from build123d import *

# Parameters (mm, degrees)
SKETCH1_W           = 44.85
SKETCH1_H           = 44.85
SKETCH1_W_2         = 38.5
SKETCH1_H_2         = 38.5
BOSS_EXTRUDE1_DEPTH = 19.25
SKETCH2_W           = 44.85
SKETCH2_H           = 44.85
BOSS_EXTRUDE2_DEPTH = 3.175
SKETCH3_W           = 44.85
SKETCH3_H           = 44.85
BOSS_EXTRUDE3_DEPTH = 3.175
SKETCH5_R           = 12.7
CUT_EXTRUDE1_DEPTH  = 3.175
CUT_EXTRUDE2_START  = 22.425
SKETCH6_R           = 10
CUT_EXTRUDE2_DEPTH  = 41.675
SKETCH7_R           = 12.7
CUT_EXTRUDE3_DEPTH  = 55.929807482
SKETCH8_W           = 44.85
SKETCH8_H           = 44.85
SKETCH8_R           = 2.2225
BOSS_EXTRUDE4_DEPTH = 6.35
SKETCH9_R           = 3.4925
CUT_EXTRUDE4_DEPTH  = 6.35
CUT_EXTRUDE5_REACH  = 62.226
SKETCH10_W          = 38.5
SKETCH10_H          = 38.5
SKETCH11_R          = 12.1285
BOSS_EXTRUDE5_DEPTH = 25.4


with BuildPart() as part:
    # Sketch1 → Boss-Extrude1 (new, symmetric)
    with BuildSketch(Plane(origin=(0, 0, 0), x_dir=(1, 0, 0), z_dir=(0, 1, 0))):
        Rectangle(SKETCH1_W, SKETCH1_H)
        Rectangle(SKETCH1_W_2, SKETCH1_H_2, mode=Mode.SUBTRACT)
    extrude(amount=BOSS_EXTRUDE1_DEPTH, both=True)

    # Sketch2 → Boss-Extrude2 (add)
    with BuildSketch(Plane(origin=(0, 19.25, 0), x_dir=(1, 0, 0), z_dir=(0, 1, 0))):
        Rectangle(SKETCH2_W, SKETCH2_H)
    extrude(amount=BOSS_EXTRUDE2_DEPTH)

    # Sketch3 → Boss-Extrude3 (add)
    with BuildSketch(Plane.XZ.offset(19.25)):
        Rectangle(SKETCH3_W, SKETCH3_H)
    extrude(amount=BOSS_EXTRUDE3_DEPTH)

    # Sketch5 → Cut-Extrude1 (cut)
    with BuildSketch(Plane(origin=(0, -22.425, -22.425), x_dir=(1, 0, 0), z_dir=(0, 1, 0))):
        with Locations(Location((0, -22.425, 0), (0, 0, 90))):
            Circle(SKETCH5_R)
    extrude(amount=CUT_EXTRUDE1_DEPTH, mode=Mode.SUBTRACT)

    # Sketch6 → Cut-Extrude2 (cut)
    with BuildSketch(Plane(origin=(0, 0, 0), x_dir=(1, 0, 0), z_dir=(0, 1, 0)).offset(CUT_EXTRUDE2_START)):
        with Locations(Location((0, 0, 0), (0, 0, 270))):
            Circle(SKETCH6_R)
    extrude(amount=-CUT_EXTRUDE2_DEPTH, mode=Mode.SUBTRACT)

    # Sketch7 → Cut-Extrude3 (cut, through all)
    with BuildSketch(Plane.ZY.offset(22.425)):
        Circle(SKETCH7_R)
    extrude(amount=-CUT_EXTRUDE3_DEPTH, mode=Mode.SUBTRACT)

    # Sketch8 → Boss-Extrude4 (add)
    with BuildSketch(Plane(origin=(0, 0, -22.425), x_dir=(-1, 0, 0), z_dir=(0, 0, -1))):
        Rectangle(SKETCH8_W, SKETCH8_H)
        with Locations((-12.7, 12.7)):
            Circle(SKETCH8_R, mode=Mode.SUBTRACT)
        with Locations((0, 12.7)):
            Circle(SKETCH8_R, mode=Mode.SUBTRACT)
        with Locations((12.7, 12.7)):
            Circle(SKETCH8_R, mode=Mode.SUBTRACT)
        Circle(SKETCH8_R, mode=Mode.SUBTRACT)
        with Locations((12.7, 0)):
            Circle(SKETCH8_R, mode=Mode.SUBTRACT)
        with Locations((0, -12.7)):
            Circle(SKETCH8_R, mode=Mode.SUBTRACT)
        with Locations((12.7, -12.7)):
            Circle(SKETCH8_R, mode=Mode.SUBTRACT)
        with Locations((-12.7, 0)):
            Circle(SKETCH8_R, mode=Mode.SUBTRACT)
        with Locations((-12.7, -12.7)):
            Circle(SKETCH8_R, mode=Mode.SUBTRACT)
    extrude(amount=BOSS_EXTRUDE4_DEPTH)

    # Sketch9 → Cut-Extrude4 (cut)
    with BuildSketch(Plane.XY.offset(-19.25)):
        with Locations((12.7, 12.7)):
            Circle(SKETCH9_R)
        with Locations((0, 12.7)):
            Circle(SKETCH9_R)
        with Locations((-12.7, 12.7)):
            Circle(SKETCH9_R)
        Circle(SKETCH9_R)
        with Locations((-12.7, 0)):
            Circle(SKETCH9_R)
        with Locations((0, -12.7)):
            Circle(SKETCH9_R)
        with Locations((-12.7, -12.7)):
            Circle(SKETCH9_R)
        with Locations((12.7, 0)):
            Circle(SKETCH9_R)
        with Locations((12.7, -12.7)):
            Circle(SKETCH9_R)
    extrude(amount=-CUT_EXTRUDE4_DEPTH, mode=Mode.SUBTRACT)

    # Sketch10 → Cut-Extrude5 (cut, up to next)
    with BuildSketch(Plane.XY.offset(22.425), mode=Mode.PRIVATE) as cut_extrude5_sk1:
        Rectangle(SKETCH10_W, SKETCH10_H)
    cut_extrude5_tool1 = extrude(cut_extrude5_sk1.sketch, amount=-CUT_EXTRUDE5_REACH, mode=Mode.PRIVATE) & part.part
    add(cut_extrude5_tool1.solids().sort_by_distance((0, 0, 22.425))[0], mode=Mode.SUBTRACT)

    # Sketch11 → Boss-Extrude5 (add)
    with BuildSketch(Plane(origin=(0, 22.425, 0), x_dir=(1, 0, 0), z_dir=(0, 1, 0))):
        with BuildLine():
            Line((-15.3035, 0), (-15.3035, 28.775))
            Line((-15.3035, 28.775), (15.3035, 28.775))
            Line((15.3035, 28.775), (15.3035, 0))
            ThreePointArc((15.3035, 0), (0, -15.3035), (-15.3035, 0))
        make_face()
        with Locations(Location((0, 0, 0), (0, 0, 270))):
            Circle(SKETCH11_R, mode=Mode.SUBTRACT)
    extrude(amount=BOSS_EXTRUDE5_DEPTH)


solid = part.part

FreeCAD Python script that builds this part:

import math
import FreeCAD as App
import Part
import Sketcher
from FreeCAD import Vector
Q = App.Units.Quantity

doc = App.newDocument("Part")
params = doc.addObject("Spreadsheet::Sheet", "Params")
for row, (alias, value) in enumerate([
    ("pad1_length", "38.5 mm"),
    ("pad2_length", "0.125 in"),
    ("pad3_length", "0.125 in"),
    ("sketch4_diameter", "1 in"),
    ("pocket1_length", "0.125 in"),
    ("pocket2_length", "41.675 mm"),
    ("sketch6_diameter", "1 in"),
    ("sketch7_diameter", "0.175 in"),
    ("pad4_length", "0.25 in"),
    ("sketch8_diameter", "0.275 in"),
    ("pocket4_length", "0.25 in"),
    ("sketch10_diameter", "0.955 in"),
    ("pad5_length", "1 in"),
], start=1):
    params.set(f"A{row}", alias)
    params.set(f"B{row}", "=" + value)
    params.setAlias(f"B{row}", alias)

body = doc.addObject("PartDesign::Body", "Body")

# Sketch on XZ plane
sketch1 = doc.addObject("Sketcher::SketchObject", "Sketch")
body.addObject(sketch1)
sketch1.AttachmentSupport = (doc.XZ_Plane, [""])
sketch1.MapMode = "FlatFace"
sketch1.addGeometry(Part.LineSegment(Vector(-22, -22, 0), Vector(-22, 22, 0)), False)
sketch1.addGeometry(Part.LineSegment(Vector(-22, 22, 0), Vector(22, 22, 0)), False)
sketch1.addGeometry(Part.LineSegment(Vector(22, 22, 0), Vector(22, -22, 0)), False)
sketch1.addGeometry(Part.LineSegment(Vector(22, -22, 0), Vector(-22, -22, 0)), False)
sketch1.addGeometry(Part.LineSegment(Vector(19, 19, 0), Vector(-19, 19, 0)), False)
sketch1.addGeometry(Part.LineSegment(Vector(-19, 19, 0), Vector(-19, -19, 0)), False)
sketch1.addGeometry(Part.LineSegment(Vector(-19, -19, 0), Vector(19, -19, 0)), False)
sketch1.addGeometry(Part.LineSegment(Vector(19, -19, 0), Vector(19, 19, 0)), False)
sketch1.addConstraint(Sketcher.Constraint("Coincident", 0, 2, 1, 1))
sketch1.addConstraint(Sketcher.Constraint("Coincident", 1, 2, 2, 1))
sketch1.addConstraint(Sketcher.Constraint("Coincident", 2, 2, 3, 1))
sketch1.addConstraint(Sketcher.Constraint("Coincident", 3, 2, 0, 1))
sketch1.addConstraint(Sketcher.Constraint("Coincident", 4, 2, 5, 1))
sketch1.addConstraint(Sketcher.Constraint("Coincident", 5, 2, 6, 1))
sketch1.addConstraint(Sketcher.Constraint("Coincident", 6, 2, 7, 1))
sketch1.addConstraint(Sketcher.Constraint("Coincident", 7, 2, 4, 1))
sketch1.addConstraint(Sketcher.Constraint("Vertical", 0))
sketch1.addConstraint(Sketcher.Constraint("Horizontal", 1))
sketch1.addConstraint(Sketcher.Constraint("Vertical", 2))
sketch1.addConstraint(Sketcher.Constraint("Horizontal", 3))
sketch1.addConstraint(Sketcher.Constraint("Horizontal", 4))
sketch1.addConstraint(Sketcher.Constraint("Vertical", 5))
sketch1.addConstraint(Sketcher.Constraint("Horizontal", 6))
sketch1.addConstraint(Sketcher.Constraint("Vertical", 7))
sketch1.addConstraint(Sketcher.Constraint("Symmetric", 0, 2, 2, 2, -1, 1))
sketch1.addConstraint(Sketcher.Constraint("Symmetric", 4, 2, 6, 2, -1, 1))
sketch1.addConstraint(Sketcher.Constraint("Equal", 3, 0))
sketch1.addConstraint(Sketcher.Constraint("Equal", 6, 5))
sketch1.addConstraint(Sketcher.Constraint("DistanceX", 0, 2, 4, 2, Q("0.125 in")))
sketch1.addConstraint(Sketcher.Constraint("DistanceX", 1, 1, 1, 2, 44.85))
pad1 = doc.addObject("PartDesign::Pad", "Pad")
body.addObject(pad1)
pad1.Profile = sketch1
pad1.setExpression("Length", "Params.pad1_length")
pad1.Midplane = True

# Sketch on XZ plane
sketch2 = doc.addObject("Sketcher::SketchObject", "Sketch001")
body.addObject(sketch2)
sketch2.AttachmentSupport = (doc.XZ_Plane, [""])
sketch2.MapMode = "FlatFace"
sketch2.AttachmentOffset = App.Placement(Vector(0, 0, -19.25), App.Rotation())
sketch2.addGeometry(Part.LineSegment(Vector(-22, -22, 0), Vector(-22, 22, 0)), False)
sketch2.addGeometry(Part.LineSegment(Vector(-22, 22, 0), Vector(22, 22, 0)), False)
sketch2.addGeometry(Part.LineSegment(Vector(22, 22, 0), Vector(22, -22, 0)), False)
sketch2.addGeometry(Part.LineSegment(Vector(22, -22, 0), Vector(-22, -22, 0)), False)
sketch2.addConstraint(Sketcher.Constraint("Coincident", 0, 2, 1, 1))
sketch2.addConstraint(Sketcher.Constraint("Coincident", 1, 2, 2, 1))
sketch2.addConstraint(Sketcher.Constraint("Coincident", 2, 2, 3, 1))
sketch2.addConstraint(Sketcher.Constraint("Coincident", 3, 2, 0, 1))
sketch2.addConstraint(Sketcher.Constraint("Vertical", 0))
sketch2.addConstraint(Sketcher.Constraint("Horizontal", 1))
sketch2.addConstraint(Sketcher.Constraint("Vertical", 2))
sketch2.addConstraint(Sketcher.Constraint("Horizontal", 3))
sketch2.addConstraint(Sketcher.Constraint("Symmetric", 0, 2, 2, 2, -1, 1))
sketch2.addConstraint(Sketcher.Constraint("Equal", 3, 0))
sketch2.addConstraint(Sketcher.Constraint("DistanceX", 1, 1, 1, 2, 44.85))
pad2 = doc.addObject("PartDesign::Pad", "Pad001")
body.addObject(pad2)
pad2.Profile = sketch2
pad2.setExpression("Length", "Params.pad2_length")
pad2.Reversed = True

# Sketch on XZ plane
sketch3 = doc.addObject("Sketcher::SketchObject", "Sketch002")
body.addObject(sketch3)
sketch3.AttachmentSupport = (doc.XZ_Plane, [""])
sketch3.MapMode = "FlatFace"
sketch3.AttachmentOffset = App.Placement(Vector(0, 0, 19.25), App.Rotation())
sketch3.addGeometry(Part.LineSegment(Vector(-22, 22, 0), Vector(-22, -22, 0)), False)
sketch3.addGeometry(Part.LineSegment(Vector(-22, -22, 0), Vector(22, -22, 0)), False)
sketch3.addGeometry(Part.LineSegment(Vector(22, -22, 0), Vector(22, 22, 0)), False)
sketch3.addGeometry(Part.LineSegment(Vector(22, 22, 0), Vector(-22, 22, 0)), False)
sketch3.addConstraint(Sketcher.Constraint("Coincident", 0, 2, 1, 1))
sketch3.addConstraint(Sketcher.Constraint("Coincident", 1, 2, 2, 1))
sketch3.addConstraint(Sketcher.Constraint("Coincident", 2, 2, 3, 1))
sketch3.addConstraint(Sketcher.Constraint("Coincident", 3, 2, 0, 1))
sketch3.addConstraint(Sketcher.Constraint("Vertical", 0))
sketch3.addConstraint(Sketcher.Constraint("Horizontal", 1))
sketch3.addConstraint(Sketcher.Constraint("Vertical", 2))
sketch3.addConstraint(Sketcher.Constraint("Horizontal", 3))
sketch3.addConstraint(Sketcher.Constraint("Symmetric", 0, 2, 2, 2, -1, 1))
sketch3.addConstraint(Sketcher.Constraint("Equal", 3, 0))
sketch3.addConstraint(Sketcher.Constraint("DistanceX", 1, 1, 1, 2, 44.85))
pad3 = doc.addObject("PartDesign::Pad", "Pad002")
body.addObject(pad3)
pad3.Profile = sketch3
pad3.setExpression("Length", "Params.pad3_length")

# Sketch on XZ plane
sketch4 = doc.addObject("Sketcher::SketchObject", "Sketch003")
body.addObject(sketch4)
sketch4.AttachmentSupport = (doc.XZ_Plane, [""])
sketch4.MapMode = "FlatFace"
sketch4.AttachmentOffset = App.Placement(Vector(0, 0, 22.425), App.Rotation())
sketch4.addGeometry(Part.Circle(Vector(0, 0, 0), Vector(0, 0, 1), 13), False)
sketch4.addConstraint(Sketcher.Constraint("Coincident", 0, 3, -1, 1))
sketch4.addConstraint(Sketcher.Constraint("Diameter", 0, Q("1 in")))
sketch4.setExpression("Constraints[1]", "Params.sketch4_diameter")
pocket1 = doc.addObject("PartDesign::Pocket", "Pocket")
body.addObject(pocket1)
pocket1.Profile = sketch4
pocket1.setExpression("Length", "Params.pocket1_length")

# Sketch on XZ plane
sketch5 = doc.addObject("Sketcher::SketchObject", "Sketch004")
body.addObject(sketch5)
sketch5.AttachmentSupport = (doc.XZ_Plane, [""])
sketch5.MapMode = "FlatFace"
sketch5.AttachmentOffset = App.Placement(Vector(0, 0, -22.425), App.Rotation())
sketch5.addGeometry(Part.Circle(Vector(0, 0, 0), Vector(0, 0, 1), 10), False)
sketch5.addConstraint(Sketcher.Constraint("Coincident", 0, 3, -1, 1))
sketch5.addConstraint(Sketcher.Constraint("Diameter", 0, 20.0))
pocket2 = doc.addObject("PartDesign::Pocket", "Pocket001")
body.addObject(pocket2)
pocket2.Profile = sketch5
pocket2.setExpression("Length", "Params.pocket2_length")
pocket2.Reversed = True

# Sketch on YZ plane
sketch6 = doc.addObject("Sketcher::SketchObject", "Sketch005")
body.addObject(sketch6)
sketch6.AttachmentSupport = (doc.YZ_Plane, [""])
sketch6.MapMode = "FlatFace"
sketch6.AttachmentOffset = App.Placement(Vector(0, 0, -22.425), App.Rotation())
sketch6.addGeometry(Part.Circle(Vector(0, 0, 0), Vector(0, 0, 1), 13), False)
sketch6.addConstraint(Sketcher.Constraint("Coincident", 0, 3, -1, 1))
sketch6.addConstraint(Sketcher.Constraint("Diameter", 0, Q("1 in")))
sketch6.setExpression("Constraints[1]", "Params.sketch6_diameter")
pocket3 = doc.addObject("PartDesign::Pocket", "Pocket002")
body.addObject(pocket3)
pocket3.Profile = sketch6
pocket3.Type = "ThroughAll"
pocket3.Reversed = True

# Sketch on XY plane
sketch7 = doc.addObject("Sketcher::SketchObject", "Sketch006")
body.addObject(sketch7)
sketch7.AttachmentSupport = (doc.XY_Plane, [""])
sketch7.MapMode = "FlatFace"
sketch7.AttachmentOffset = App.Placement(Vector(0, 0, -22.425), App.Rotation())
sketch7.addGeometry(Part.LineSegment(Vector(22.4, 22.4, 0), Vector(22.4, -22.4, 0)), False)
sketch7.addGeometry(Part.LineSegment(Vector(22.4, -22.4, 0), Vector(-22.4, -22.4, 0)), False)
sketch7.addGeometry(Part.LineSegment(Vector(-22.4, -22.4, 0), Vector(-22.4, 22.4, 0)), False)
sketch7.addGeometry(Part.LineSegment(Vector(-22.4, 22.4, 0), Vector(22.4, 22.4, 0)), False)
sketch7.addGeometry(Part.Circle(Vector(12.7, -12.7, 0), Vector(0, 0, 1), 2.2), False)
sketch7.addGeometry(Part.Circle(Vector(0, -12.7, 0), Vector(0, 0, 1), 2.2), False)
sketch7.addGeometry(Part.Circle(Vector(-12.7, -12.7, 0), Vector(0, 0, 1), 2.2), False)
sketch7.addGeometry(Part.Circle(Vector(12.7, 0, 0), Vector(0, 0, 1), 2.2), False)
sketch7.addGeometry(Part.Circle(Vector(12.7, 12.7, 0), Vector(0, 0, 1), 2.2), False)
sketch7.addGeometry(Part.Circle(Vector(0, 0, 0), Vector(0, 0, 1), 2.2), False)
sketch7.addGeometry(Part.Circle(Vector(-12.7, 0, 0), Vector(0, 0, 1), 2.2), False)
sketch7.addGeometry(Part.Circle(Vector(0, 12.7, 0), Vector(0, 0, 1), 2.2), False)
sketch7.addGeometry(Part.Circle(Vector(-12.7, 12.7, 0), Vector(0, 0, 1), 2.2), False)
sketch7.addConstraint(Sketcher.Constraint("Coincident", 0, 2, 1, 1))
sketch7.addConstraint(Sketcher.Constraint("Coincident", 1, 2, 2, 1))
sketch7.addConstraint(Sketcher.Constraint("Coincident", 2, 2, 3, 1))
sketch7.addConstraint(Sketcher.Constraint("Coincident", 3, 2, 0, 1))
sketch7.addConstraint(Sketcher.Constraint("Vertical", 0))
sketch7.addConstraint(Sketcher.Constraint("Horizontal", 1))
sketch7.addConstraint(Sketcher.Constraint("Vertical", 2))
sketch7.addConstraint(Sketcher.Constraint("Horizontal", 3))
sketch7.addConstraint(Sketcher.Constraint("Coincident", 9, 3, -1, 1))
sketch7.addConstraint(Sketcher.Constraint("Equal", 4, 5))
sketch7.addConstraint(Sketcher.Constraint("Equal", 5, 6))
sketch7.addConstraint(Sketcher.Constraint("Equal", 6, 7))
sketch7.addConstraint(Sketcher.Constraint("Equal", 7, 8))
sketch7.addConstraint(Sketcher.Constraint("Equal", 8, 9))
sketch7.addConstraint(Sketcher.Constraint("Equal", 9, 10))
sketch7.addConstraint(Sketcher.Constraint("Equal", 10, 11))
sketch7.addConstraint(Sketcher.Constraint("Equal", 11, 12))
sketch7.addConstraint(Sketcher.Constraint("Symmetric", 6, 3, 8, 3, -1, 1))
sketch7.addConstraint(Sketcher.Constraint("Symmetric", 7, 3, 10, 3, -1, 1))
sketch7.addConstraint(Sketcher.Constraint("Symmetric", 5, 3, 11, 3, -1, 1))
sketch7.addConstraint(Sketcher.Constraint("Symmetric", 4, 3, 12, 3, -1, 1))
sketch7.addConstraint(Sketcher.Constraint("Symmetric", 0, 2, 2, 2, -1, 1))
sketch7.addConstraint(Sketcher.Constraint("Symmetric", 4, 3, 6, 3, -2))
sketch7.addConstraint(Sketcher.Constraint("PointOnObject", 5, 3, -2))
sketch7.addConstraint(Sketcher.Constraint("PointOnObject", 7, 3, -1))
sketch7.addConstraint(Sketcher.Constraint("Horizontal", 4, 3, 5, 3))
sketch7.addConstraint(Sketcher.Constraint("Vertical", 4, 3, 7, 3))
sketch7.addConstraint(Sketcher.Constraint("Equal", 3, 0))
sketch7.addConstraint(Sketcher.Constraint("Diameter", 4, Q("0.175 in")))
sketch7.addConstraint(Sketcher.Constraint("DistanceX", 6, 3, 4, 3, Q("1 in")))
sketch7.addConstraint(Sketcher.Constraint("DistanceY", 4, 3, 8, 3, Q("1 in")))
sketch7.addConstraint(Sketcher.Constraint("DistanceX", 1, 2, 1, 1, 44.85))
sketch7.setExpression("Constraints[28]", "Params.sketch7_diameter")
pad4 = doc.addObject("PartDesign::Pad", "Pad003")
body.addObject(pad4)
pad4.Profile = sketch7
pad4.setExpression("Length", "Params.pad4_length")
pad4.Reversed = True

# Sketch on XY plane
sketch8 = doc.addObject("Sketcher::SketchObject", "Sketch007")
body.addObject(sketch8)
sketch8.AttachmentSupport = (doc.XY_Plane, [""])
sketch8.MapMode = "FlatFace"
sketch8.AttachmentOffset = App.Placement(Vector(0, 0, -19.25), App.Rotation())
sketch8.addGeometry(Part.Circle(Vector(12.7, 12.7, 0), Vector(0, 0, 1), 3.5), False)
sketch8.addGeometry(Part.Circle(Vector(0, 12.7, 0), Vector(0, 0, 1), 3.5), False)
sketch8.addGeometry(Part.Circle(Vector(-12.7, 12.7, 0), Vector(0, 0, 1), 3.5), False)
sketch8.addGeometry(Part.Circle(Vector(0, 0, 0), Vector(0, 0, 1), 3.5), False)
sketch8.addGeometry(Part.Circle(Vector(-12.7, 0, 0), Vector(0, 0, 1), 3.5), False)
sketch8.addGeometry(Part.Circle(Vector(0, -12.7, 0), Vector(0, 0, 1), 3.5), False)
sketch8.addGeometry(Part.Circle(Vector(-12.7, -12.7, 0), Vector(0, 0, 1), 3.5), False)
sketch8.addGeometry(Part.Circle(Vector(12.7, 0, 0), Vector(0, 0, 1), 3.5), False)
sketch8.addGeometry(Part.Circle(Vector(12.7, -12.7, 0), Vector(0, 0, 1), 3.5), False)
sketch8.addConstraint(Sketcher.Constraint("Coincident", 3, 3, -1, 1))
sketch8.addConstraint(Sketcher.Constraint("Equal", 0, 1))
sketch8.addConstraint(Sketcher.Constraint("Equal", 1, 2))
sketch8.addConstraint(Sketcher.Constraint("Equal", 2, 3))
sketch8.addConstraint(Sketcher.Constraint("Equal", 3, 4))
sketch8.addConstraint(Sketcher.Constraint("Equal", 4, 5))
sketch8.addConstraint(Sketcher.Constraint("Equal", 5, 6))
sketch8.addConstraint(Sketcher.Constraint("Equal", 6, 7))
sketch8.addConstraint(Sketcher.Constraint("Equal", 7, 8))
sketch8.addConstraint(Sketcher.Constraint("Symmetric", 1, 3, 5, 3, -1, 1))
sketch8.addConstraint(Sketcher.Constraint("Symmetric", 0, 3, 6, 3, -1, 1))
sketch8.addConstraint(Sketcher.Constraint("Symmetric", 4, 3, 7, 3, -1, 1))
sketch8.addConstraint(Sketcher.Constraint("Symmetric", 2, 3, 8, 3, -1, 1))
sketch8.addConstraint(Sketcher.Constraint("Symmetric", 0, 3, 2, 3, -2))
sketch8.addConstraint(Sketcher.Constraint("PointOnObject", 1, 3, -2))
sketch8.addConstraint(Sketcher.Constraint("PointOnObject", 4, 3, -1))
sketch8.addConstraint(Sketcher.Constraint("Horizontal", 0, 3, 1, 3))
sketch8.addConstraint(Sketcher.Constraint("Vertical", 2, 3, 4, 3))
sketch8.addConstraint(Sketcher.Constraint("Diameter", 0, Q("0.275 in")))
sketch8.addConstraint(Sketcher.Constraint("DistanceX", 2, 3, 0, 3, Q("1 in")))
sketch8.addConstraint(Sketcher.Constraint("DistanceY", 5, 3, 1, 3, Q("1 in")))
sketch8.setExpression("Constraints[18]", "Params.sketch8_diameter")
pocket4 = doc.addObject("PartDesign::Pocket", "Pocket003")
body.addObject(pocket4)
pocket4.Profile = sketch8
pocket4.setExpression("Length", "Params.pocket4_length")

# Sketch on XY plane
sketch9 = doc.addObject("Sketcher::SketchObject", "Sketch008")
body.addObject(sketch9)
sketch9.AttachmentSupport = (doc.XY_Plane, [""])
sketch9.MapMode = "FlatFace"
sketch9.AttachmentOffset = App.Placement(Vector(0, 0, 22.425), App.Rotation())
sketch9.addGeometry(Part.LineSegment(Vector(-19, 19, 0), Vector(-19, -19, 0)), False)
sketch9.addGeometry(Part.LineSegment(Vector(-19, -19, 0), Vector(19, -19, 0)), False)
sketch9.addGeometry(Part.LineSegment(Vector(19, -19, 0), Vector(19, 19, 0)), False)
sketch9.addGeometry(Part.LineSegment(Vector(19, 19, 0), Vector(-19, 19, 0)), False)
sketch9.addConstraint(Sketcher.Constraint("Coincident", 0, 2, 1, 1))
sketch9.addConstraint(Sketcher.Constraint("Coincident", 1, 2, 2, 1))
sketch9.addConstraint(Sketcher.Constraint("Coincident", 2, 2, 3, 1))
sketch9.addConstraint(Sketcher.Constraint("Coincident", 3, 2, 0, 1))
sketch9.addConstraint(Sketcher.Constraint("Vertical", 0))
sketch9.addConstraint(Sketcher.Constraint("Horizontal", 1))
sketch9.addConstraint(Sketcher.Constraint("Vertical", 2))
sketch9.addConstraint(Sketcher.Constraint("Horizontal", 3))
sketch9.addConstraint(Sketcher.Constraint("Symmetric", 0, 2, 2, 2, -1, 1))
sketch9.addConstraint(Sketcher.Constraint("Equal", 3, 0))
sketch9.addConstraint(Sketcher.Constraint("DistanceX", 1, 1, 1, 2, 38.5))
pocket5 = doc.addObject("PartDesign::Pocket", "Pocket004")
body.addObject(pocket5)
pocket5.Profile = sketch9
pocket5.Type = "UpToFirst"

# Sketch on XZ plane
sketch10 = doc.addObject("Sketcher::SketchObject", "Sketch009")
body.addObject(sketch10)
sketch10.AttachmentSupport = (doc.XZ_Plane, [""])
sketch10.MapMode = "FlatFace"
sketch10.AttachmentOffset = App.Placement(Vector(0, 0, -22.425), App.Rotation())
sketch10.addGeometry(Part.LineSegment(Vector(-15, -29, 0), Vector(-15, 0, 0)), False)
sketch10.addGeometry(Part.ArcOfCircle(Part.Circle(Vector(0, 0, 0), Vector(0, 0, 1), 15), math.radians(0), math.radians(180)), False)
sketch10.addGeometry(Part.LineSegment(Vector(15, 0, 0), Vector(15, -29, 0)), False)
sketch10.addGeometry(Part.LineSegment(Vector(15, -29, 0), Vector(-15, -29, 0)), False)
sketch10.addGeometry(Part.Circle(Vector(0, 0, 0), Vector(0, 0, 1), 12), False)
sketch10.addConstraint(Sketcher.Constraint("Tangent", 0, 2, 1, 2))
sketch10.addConstraint(Sketcher.Constraint("Tangent", 1, 1, 2, 1))
sketch10.addConstraint(Sketcher.Constraint("Coincident", 2, 2, 3, 1))
sketch10.addConstraint(Sketcher.Constraint("Coincident", 3, 2, 0, 1))
sketch10.addConstraint(Sketcher.Constraint("Vertical", 0))
sketch10.addConstraint(Sketcher.Constraint("Vertical", 2))
sketch10.addConstraint(Sketcher.Constraint("Horizontal", 3))
sketch10.addConstraint(Sketcher.Constraint("Coincident", 1, 3, -1, 1))
sketch10.addConstraint(Sketcher.Constraint("Coincident", 4, 3, -1, 1))
sketch10.addConstraint(Sketcher.Constraint("Diameter", 4, Q("0.955 in")))
sketch10.addConstraint(Sketcher.Constraint("Radius", 1, Q("0.6025 in")))
sketch10.addConstraint(Sketcher.Constraint("DistanceY", 0, 1, 0, 2, 28.775))
sketch10.setExpression("Constraints[9]", "Params.sketch10_diameter")
pad5 = doc.addObject("PartDesign::Pad", "Pad004")
body.addObject(pad5)
pad5.Profile = sketch10
pad5.setExpression("Length", "Params.pad5_length")
pad5.Reversed = True

doc.recompute()
